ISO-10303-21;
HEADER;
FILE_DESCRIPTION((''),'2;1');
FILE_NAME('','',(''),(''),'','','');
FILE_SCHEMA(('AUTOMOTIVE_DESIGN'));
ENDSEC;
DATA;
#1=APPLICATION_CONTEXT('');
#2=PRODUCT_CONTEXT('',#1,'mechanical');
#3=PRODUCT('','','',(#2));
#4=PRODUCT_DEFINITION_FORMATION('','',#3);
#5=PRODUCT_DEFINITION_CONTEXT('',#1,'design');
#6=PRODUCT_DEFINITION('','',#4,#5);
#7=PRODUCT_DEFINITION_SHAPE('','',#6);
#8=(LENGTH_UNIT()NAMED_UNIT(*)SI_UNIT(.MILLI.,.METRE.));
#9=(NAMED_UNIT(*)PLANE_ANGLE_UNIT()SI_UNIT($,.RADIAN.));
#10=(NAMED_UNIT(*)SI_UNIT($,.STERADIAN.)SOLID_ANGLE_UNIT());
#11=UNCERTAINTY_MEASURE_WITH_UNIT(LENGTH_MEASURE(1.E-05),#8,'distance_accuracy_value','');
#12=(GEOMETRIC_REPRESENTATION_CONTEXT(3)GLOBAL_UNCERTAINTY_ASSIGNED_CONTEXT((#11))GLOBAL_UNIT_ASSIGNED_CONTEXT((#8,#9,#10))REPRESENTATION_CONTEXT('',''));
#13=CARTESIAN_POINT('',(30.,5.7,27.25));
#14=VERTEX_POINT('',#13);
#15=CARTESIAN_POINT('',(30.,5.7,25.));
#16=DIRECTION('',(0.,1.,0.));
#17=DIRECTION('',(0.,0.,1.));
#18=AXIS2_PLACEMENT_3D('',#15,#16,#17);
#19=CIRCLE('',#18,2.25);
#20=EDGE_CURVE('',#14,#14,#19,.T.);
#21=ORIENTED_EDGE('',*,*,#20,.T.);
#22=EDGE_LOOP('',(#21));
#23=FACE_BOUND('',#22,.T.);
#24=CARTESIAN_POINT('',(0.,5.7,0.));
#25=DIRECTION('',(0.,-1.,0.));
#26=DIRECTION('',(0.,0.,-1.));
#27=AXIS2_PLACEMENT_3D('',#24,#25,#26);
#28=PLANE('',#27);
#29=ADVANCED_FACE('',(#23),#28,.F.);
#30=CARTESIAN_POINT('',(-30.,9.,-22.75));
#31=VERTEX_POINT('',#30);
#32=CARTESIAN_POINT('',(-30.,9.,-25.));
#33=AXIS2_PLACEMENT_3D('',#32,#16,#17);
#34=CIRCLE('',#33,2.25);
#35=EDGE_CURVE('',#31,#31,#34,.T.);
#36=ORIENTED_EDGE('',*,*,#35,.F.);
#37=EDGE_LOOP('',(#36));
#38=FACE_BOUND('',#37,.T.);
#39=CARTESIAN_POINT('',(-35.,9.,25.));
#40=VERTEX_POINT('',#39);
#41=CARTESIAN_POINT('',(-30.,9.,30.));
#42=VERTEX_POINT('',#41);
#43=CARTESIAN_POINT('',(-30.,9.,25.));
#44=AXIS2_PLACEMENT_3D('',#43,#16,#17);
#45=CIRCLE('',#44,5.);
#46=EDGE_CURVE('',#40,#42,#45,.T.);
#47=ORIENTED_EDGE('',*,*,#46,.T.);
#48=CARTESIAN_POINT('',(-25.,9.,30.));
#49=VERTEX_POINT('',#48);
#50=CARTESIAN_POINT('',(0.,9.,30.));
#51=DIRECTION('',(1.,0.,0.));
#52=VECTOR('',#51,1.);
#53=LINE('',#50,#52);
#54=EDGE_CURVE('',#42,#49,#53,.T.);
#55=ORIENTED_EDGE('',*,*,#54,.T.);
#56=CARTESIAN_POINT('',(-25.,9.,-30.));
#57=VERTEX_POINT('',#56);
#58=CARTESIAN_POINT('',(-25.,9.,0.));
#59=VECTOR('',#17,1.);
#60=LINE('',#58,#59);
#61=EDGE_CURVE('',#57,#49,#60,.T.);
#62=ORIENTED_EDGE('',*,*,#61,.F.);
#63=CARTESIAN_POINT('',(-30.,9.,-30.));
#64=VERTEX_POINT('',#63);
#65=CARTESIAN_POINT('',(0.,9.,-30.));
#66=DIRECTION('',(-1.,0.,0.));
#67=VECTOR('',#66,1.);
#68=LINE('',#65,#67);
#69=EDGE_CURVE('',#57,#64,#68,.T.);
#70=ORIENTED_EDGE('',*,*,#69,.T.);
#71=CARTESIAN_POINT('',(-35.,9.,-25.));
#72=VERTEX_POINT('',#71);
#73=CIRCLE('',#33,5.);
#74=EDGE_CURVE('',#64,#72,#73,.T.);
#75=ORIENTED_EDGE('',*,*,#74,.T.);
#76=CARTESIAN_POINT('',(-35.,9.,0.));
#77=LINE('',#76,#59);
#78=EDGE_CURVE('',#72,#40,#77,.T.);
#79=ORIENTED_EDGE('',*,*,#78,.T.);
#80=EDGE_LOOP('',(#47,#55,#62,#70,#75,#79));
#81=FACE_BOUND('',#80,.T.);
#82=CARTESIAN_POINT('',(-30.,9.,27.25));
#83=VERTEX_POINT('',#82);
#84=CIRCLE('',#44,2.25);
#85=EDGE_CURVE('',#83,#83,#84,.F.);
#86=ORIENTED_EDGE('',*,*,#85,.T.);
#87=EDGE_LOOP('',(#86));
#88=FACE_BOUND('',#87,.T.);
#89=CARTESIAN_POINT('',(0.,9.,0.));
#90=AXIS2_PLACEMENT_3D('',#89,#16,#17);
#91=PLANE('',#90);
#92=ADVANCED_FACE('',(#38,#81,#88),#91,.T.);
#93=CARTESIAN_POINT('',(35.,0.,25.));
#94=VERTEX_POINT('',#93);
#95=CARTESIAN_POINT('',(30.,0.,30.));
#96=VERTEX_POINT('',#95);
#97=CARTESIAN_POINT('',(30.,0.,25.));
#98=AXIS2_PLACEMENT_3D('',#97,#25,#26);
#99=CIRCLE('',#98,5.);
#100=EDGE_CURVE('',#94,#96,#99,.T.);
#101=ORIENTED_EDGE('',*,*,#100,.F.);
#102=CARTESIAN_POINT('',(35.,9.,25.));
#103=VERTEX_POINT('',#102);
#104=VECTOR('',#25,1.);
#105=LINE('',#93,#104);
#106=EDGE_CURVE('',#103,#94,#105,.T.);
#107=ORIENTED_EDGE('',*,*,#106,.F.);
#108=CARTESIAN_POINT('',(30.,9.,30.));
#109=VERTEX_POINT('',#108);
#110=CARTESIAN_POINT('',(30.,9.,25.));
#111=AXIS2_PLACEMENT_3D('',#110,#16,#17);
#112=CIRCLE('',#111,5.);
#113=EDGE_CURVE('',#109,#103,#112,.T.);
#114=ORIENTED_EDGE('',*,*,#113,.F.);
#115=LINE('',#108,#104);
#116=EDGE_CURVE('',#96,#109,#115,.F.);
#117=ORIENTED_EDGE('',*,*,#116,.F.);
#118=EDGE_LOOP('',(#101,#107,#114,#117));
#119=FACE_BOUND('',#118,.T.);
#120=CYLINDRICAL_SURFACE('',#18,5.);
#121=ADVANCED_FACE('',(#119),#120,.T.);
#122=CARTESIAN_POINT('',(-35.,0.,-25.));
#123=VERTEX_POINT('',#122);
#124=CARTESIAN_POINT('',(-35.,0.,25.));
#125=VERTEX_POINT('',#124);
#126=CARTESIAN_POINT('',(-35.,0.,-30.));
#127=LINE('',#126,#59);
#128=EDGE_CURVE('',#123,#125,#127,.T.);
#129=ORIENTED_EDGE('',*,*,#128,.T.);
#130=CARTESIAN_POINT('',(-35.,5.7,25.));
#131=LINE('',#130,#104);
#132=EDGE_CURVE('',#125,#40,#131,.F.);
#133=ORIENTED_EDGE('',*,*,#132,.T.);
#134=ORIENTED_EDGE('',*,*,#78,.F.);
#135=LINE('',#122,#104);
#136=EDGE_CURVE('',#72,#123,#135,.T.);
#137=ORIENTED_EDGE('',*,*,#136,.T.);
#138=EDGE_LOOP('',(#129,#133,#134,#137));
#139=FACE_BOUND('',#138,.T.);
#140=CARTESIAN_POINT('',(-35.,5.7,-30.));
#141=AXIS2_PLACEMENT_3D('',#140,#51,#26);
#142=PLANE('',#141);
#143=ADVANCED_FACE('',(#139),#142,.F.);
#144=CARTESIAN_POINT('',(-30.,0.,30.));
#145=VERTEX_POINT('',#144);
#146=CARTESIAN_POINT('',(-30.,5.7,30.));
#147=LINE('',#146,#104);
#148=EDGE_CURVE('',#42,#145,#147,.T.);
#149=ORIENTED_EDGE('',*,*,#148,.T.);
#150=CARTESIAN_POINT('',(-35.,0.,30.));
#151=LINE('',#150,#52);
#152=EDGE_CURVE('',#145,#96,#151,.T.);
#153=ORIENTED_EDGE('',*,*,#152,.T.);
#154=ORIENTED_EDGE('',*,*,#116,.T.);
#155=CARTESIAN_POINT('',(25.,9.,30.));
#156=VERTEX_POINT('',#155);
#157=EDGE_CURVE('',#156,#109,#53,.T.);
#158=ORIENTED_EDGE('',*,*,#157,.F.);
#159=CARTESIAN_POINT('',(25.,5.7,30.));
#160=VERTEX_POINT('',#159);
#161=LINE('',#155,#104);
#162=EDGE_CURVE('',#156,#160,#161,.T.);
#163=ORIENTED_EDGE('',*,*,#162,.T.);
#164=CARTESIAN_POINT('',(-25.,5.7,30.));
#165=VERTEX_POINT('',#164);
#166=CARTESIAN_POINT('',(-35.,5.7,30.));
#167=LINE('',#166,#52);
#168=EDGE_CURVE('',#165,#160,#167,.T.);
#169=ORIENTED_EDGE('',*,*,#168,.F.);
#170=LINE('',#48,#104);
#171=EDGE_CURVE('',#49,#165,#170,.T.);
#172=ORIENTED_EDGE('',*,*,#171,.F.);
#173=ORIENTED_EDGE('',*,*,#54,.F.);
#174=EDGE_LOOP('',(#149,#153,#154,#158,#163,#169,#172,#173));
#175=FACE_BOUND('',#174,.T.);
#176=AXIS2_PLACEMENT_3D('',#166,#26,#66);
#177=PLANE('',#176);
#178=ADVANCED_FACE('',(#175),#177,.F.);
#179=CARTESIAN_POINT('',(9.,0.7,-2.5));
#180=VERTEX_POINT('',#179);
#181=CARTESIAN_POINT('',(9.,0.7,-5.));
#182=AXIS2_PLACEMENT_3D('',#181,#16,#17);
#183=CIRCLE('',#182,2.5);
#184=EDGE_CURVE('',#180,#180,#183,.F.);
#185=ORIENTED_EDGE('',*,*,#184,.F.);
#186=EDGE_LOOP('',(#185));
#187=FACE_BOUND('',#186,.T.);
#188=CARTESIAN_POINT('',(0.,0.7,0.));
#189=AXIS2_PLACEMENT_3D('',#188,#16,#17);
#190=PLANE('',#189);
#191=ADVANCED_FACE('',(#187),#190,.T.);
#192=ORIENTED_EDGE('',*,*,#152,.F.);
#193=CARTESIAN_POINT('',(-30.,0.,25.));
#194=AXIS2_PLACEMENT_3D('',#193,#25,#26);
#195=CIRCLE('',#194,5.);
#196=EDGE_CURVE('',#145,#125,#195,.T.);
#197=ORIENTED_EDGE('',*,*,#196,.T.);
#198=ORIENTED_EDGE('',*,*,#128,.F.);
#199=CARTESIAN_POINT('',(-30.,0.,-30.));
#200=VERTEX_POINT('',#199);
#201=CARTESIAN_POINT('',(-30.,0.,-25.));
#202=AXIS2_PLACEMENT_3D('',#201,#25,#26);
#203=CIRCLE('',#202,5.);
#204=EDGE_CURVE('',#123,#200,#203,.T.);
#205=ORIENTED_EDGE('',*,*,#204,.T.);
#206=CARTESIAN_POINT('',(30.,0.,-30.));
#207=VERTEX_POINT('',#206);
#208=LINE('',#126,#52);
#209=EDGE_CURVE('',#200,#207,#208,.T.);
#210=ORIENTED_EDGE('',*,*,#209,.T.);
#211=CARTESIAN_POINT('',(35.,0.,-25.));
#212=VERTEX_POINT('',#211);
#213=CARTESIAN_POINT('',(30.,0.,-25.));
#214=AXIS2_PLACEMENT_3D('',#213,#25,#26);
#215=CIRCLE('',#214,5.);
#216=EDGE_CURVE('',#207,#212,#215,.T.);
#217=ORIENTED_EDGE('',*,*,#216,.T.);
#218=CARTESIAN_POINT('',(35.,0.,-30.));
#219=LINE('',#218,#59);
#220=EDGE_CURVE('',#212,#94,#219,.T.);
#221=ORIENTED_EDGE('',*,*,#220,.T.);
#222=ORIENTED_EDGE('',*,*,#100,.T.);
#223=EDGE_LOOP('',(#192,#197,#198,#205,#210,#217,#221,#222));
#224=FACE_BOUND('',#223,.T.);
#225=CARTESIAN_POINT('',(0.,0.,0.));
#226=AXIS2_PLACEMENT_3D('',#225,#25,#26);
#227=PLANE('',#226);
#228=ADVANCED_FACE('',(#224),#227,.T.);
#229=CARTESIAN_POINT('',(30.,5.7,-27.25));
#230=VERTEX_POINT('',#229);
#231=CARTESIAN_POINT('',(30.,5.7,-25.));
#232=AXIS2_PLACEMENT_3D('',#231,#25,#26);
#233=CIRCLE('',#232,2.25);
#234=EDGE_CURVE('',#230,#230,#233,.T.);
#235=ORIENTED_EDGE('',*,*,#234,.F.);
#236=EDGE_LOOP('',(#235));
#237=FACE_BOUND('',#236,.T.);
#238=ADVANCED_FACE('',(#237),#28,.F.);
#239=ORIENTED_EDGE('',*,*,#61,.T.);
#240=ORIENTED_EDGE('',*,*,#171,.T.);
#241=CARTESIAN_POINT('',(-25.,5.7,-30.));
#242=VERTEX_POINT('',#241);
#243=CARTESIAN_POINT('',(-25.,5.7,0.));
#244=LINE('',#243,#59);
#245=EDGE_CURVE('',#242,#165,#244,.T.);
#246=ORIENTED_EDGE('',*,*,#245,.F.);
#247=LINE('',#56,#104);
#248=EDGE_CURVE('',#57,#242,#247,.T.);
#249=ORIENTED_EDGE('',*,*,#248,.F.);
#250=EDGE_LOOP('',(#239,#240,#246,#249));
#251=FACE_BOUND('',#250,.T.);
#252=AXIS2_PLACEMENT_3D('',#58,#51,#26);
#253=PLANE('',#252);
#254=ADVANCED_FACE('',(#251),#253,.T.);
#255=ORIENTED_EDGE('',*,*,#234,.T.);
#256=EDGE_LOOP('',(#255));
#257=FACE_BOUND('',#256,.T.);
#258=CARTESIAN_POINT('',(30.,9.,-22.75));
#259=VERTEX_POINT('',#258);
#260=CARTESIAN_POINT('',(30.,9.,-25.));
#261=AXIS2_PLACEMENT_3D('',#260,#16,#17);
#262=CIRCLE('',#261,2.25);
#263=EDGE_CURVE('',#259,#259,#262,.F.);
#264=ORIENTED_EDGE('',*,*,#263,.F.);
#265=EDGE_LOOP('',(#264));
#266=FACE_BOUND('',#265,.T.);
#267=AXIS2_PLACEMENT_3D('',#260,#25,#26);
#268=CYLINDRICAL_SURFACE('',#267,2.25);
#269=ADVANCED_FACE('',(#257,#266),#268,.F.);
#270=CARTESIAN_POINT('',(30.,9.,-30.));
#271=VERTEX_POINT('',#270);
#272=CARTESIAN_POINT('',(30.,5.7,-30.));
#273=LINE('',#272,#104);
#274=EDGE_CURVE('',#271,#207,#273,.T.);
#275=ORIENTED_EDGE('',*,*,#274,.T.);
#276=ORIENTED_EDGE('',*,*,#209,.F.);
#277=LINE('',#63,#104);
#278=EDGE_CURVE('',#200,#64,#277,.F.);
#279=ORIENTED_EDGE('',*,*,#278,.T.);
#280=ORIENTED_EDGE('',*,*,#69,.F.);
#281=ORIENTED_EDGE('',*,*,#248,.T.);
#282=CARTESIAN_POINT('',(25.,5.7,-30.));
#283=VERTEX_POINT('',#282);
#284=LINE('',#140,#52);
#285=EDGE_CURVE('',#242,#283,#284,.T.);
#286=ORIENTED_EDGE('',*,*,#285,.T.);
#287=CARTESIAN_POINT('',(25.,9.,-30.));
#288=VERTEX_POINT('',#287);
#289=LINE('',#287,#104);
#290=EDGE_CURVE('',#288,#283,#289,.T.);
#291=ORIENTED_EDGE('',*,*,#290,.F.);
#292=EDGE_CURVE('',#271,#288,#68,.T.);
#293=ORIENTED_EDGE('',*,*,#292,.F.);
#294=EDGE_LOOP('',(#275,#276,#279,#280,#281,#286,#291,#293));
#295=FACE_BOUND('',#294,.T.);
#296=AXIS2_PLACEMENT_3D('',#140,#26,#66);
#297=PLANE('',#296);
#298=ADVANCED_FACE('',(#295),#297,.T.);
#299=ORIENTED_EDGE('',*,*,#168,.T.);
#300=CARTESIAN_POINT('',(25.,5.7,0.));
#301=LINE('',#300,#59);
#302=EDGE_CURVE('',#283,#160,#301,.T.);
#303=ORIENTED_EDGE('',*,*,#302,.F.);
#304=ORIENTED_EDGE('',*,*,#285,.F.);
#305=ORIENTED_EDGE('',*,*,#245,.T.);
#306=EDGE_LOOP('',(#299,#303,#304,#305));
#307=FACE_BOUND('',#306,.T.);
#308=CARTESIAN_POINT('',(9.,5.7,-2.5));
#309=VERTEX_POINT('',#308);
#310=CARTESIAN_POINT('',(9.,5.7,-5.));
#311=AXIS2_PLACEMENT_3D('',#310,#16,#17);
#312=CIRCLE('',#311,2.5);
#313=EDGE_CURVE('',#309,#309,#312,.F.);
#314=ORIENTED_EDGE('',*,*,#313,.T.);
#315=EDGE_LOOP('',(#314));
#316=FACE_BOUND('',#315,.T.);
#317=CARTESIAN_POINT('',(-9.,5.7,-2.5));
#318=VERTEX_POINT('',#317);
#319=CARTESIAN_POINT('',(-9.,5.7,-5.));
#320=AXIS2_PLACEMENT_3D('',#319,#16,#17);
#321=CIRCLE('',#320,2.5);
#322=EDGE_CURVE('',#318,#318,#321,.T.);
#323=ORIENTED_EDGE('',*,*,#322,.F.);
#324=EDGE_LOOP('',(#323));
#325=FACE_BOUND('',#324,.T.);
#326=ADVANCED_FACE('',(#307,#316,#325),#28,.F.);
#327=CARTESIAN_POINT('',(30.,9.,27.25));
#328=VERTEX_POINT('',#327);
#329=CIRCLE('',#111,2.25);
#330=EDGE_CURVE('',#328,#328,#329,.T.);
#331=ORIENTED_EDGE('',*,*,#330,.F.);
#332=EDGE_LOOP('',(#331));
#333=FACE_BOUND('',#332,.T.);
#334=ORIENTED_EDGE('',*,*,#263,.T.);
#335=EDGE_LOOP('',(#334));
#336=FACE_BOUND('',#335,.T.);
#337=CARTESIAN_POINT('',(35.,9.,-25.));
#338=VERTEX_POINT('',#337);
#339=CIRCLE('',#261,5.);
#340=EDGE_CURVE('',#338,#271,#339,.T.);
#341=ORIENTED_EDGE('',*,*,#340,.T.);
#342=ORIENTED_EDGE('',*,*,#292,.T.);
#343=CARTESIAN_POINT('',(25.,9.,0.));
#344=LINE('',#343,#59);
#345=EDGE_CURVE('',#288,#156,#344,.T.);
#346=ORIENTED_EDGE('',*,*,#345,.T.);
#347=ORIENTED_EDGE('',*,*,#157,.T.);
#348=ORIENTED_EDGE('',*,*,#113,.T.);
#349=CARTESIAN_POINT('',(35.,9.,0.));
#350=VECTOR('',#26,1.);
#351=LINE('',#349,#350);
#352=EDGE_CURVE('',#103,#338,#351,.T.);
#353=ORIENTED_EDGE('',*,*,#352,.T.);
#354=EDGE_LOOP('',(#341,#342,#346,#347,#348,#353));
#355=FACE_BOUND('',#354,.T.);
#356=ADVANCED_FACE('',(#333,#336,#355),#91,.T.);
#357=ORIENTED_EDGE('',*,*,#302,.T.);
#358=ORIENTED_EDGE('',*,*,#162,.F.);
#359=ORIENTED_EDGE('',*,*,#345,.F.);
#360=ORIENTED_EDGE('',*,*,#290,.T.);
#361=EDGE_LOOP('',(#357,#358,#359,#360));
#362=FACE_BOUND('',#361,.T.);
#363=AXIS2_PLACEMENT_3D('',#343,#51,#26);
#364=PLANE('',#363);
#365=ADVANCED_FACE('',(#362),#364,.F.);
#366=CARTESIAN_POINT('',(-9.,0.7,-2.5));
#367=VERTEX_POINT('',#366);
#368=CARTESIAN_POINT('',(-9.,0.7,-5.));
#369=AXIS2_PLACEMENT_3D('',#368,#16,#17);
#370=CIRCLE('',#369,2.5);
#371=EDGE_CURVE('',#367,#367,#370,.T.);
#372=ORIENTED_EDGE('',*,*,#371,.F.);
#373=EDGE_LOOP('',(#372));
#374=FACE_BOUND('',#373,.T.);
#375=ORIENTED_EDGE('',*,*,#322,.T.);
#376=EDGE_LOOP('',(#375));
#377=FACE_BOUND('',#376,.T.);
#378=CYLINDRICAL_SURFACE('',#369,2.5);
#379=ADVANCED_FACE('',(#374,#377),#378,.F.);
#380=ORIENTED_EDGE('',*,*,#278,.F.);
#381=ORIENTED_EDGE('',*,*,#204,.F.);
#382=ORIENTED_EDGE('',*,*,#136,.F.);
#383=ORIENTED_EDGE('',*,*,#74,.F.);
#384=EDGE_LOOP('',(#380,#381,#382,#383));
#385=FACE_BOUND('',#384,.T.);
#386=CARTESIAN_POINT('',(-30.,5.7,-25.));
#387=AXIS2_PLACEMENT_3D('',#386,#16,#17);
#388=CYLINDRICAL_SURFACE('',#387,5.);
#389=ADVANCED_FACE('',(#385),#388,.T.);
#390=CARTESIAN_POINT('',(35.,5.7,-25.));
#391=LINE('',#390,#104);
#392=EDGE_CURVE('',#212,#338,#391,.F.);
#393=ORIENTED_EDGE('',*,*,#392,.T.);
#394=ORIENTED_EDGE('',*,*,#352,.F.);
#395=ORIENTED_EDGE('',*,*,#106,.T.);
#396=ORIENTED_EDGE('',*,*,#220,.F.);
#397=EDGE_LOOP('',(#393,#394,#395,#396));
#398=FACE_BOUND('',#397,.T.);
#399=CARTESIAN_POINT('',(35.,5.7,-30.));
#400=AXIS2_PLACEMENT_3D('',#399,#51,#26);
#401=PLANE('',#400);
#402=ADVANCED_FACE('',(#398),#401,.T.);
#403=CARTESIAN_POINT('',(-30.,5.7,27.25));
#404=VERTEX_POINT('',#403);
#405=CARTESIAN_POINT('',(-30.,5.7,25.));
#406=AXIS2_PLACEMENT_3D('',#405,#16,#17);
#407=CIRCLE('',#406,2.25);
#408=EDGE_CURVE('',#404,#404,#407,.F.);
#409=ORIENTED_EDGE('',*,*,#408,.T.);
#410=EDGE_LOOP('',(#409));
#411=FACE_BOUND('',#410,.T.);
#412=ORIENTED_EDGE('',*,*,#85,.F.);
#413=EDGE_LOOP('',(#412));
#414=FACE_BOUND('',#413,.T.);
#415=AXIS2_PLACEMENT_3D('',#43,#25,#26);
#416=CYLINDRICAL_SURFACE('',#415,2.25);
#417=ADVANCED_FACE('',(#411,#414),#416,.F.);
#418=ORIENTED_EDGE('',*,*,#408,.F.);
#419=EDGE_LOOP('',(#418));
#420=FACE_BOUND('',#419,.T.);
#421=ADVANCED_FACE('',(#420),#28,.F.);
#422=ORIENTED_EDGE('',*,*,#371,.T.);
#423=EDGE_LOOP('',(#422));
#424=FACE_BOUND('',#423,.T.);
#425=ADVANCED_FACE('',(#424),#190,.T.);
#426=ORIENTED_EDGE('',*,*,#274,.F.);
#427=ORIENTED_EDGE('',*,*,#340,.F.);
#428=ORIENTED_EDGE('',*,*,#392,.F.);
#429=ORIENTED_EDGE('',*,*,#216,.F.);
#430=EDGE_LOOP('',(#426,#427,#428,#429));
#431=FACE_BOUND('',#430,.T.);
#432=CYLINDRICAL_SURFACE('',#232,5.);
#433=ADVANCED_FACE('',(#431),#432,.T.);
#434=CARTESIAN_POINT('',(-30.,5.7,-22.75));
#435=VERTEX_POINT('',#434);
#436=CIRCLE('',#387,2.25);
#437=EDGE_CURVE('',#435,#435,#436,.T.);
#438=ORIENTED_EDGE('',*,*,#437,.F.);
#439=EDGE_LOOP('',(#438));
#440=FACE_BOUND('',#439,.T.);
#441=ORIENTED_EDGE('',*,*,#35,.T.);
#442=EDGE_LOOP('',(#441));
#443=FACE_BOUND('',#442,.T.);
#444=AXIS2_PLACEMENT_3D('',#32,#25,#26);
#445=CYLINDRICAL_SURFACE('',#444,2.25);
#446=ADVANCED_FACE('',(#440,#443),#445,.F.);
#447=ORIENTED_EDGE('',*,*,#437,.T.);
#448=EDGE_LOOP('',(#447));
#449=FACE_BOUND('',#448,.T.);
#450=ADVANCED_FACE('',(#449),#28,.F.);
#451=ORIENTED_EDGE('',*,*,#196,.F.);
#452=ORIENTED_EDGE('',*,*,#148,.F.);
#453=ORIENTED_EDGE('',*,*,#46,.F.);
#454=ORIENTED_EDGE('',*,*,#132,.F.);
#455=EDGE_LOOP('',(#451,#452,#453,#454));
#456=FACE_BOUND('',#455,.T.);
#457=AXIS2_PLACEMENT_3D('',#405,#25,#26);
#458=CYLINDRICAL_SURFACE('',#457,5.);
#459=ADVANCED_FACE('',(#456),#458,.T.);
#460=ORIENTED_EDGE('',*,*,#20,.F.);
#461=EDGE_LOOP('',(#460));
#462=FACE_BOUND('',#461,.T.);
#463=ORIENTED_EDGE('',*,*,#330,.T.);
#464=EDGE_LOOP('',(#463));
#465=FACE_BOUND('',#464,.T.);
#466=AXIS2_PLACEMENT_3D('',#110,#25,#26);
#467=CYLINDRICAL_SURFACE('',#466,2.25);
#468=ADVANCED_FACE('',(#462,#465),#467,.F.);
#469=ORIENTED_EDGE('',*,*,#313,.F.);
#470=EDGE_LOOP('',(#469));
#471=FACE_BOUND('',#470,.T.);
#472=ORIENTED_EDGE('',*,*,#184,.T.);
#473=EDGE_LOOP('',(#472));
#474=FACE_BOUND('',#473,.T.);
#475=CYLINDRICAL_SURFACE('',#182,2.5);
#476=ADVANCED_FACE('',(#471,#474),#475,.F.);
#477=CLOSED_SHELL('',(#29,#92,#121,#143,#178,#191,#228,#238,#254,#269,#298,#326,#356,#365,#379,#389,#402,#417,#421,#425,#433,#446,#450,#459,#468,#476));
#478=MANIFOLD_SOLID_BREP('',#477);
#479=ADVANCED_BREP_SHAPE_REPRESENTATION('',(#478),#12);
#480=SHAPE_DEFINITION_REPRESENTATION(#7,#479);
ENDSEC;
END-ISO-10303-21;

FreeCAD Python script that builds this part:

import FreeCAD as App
import Part
import Sketcher
from FreeCAD import Vector
Q = App.Units.Quantity


def edges_at(feature, points):
    """Names of the edges that pass closest to the given points."""
    edges = feature.Shape.Edges
    near = lambda p: min(range(len(edges)), key=lambda i: edges[i].distToShape(Part.Vertex(*p))[0])
    return sorted({f"Edge{near(p) + 1}" for p in points})


def add_polygon(sketch, points):
    """Adds a closed chain of lines whose ends are joined by coincident constraints."""
    first, n = sketch.GeometryCount, len(points)
    for a, b in zip(points, points[1:] + points[:1]):
        sketch.addGeometry(Part.LineSegment(App.Vector(*a, 0), App.Vector(*b, 0)), False)
    for i in range(n):
        sketch.addConstraint(Sketcher.Constraint("Coincident", first + i, 2, first + (i + 1) % n, 1))

doc = App.newDocument("Part")
body = doc.addObject("PartDesign::Body", "Body")

sketch1 = body.newObject("Sketcher::SketchObject", "Sketch")
sketch1.AttachmentSupport = (doc.getObject("XZ_Plane"), [""])
sketch1.MapMode = "FlatFace"
add_polygon(sketch1, [(-35, -30), (-35, 30), (35, 30), (35, -30)])
sketch1.addConstraint([
    Sketcher.Constraint("Vertical", 0),
    Sketcher.Constraint("Horizontal", 1),
    Sketcher.Constraint("Vertical", 2),
    Sketcher.Constraint("Horizontal", 3),
    Sketcher.Constraint("Symmetric", 0, 2, 2, 2, -1, 1),
    Sketcher.Constraint("DistanceX", 1, 1, 1, 2, Q("70 mm")),
    Sketcher.Constraint("DistanceY", 0, 1, 0, 2, Q("60 mm")),
])
pad1 = body.newObject("PartDesign::Pad", "Pad")
pad1.Profile = sketch1
pad1.Length = 5.7
pad1.Reversed = True

sketch2 = body.newObject("Sketcher::SketchObject", "Sketch001")
sketch2.AttachmentSupport = (doc.getObject("XZ_Plane"), [""])
sketch2.MapMode = "FlatFace"
sketch2.AttachmentOffset = App.Placement(Vector(0, 0, -5.7), App.Rotation())
add_polygon(sketch2, [(-35, -30), (-35, 30), (-25, 30), (-25, -30)])
sketch2.addGeometry(Part.Circle(Vector(-30, 25, 0), Vector(0, 0, 1), 2.25), False)
sketch2.addGeometry(Part.Circle(Vector(-30, -25, 0), Vector(0, 0, 1), 2.25), False)
add_polygon(sketch2, [(25, -30), (25, 30), (35, 30), (35, -30)])
sketch2.addGeometry(Part.Circle(Vector(30, 25, 0), Vector(0, 0, 1), 2.25), False)
sketch2.addGeometry(Part.Circle(Vector(30, -25, 0), Vector(0, 0, 1), 2.25), False)
sketch2.addConstraint([
    Sketcher.Constraint("Vertical", 0),
    Sketcher.Constraint("Horizontal", 1),
    Sketcher.Constraint("Vertical", 2),
    Sketcher.Constraint("Horizontal", 3),
    Sketcher.Constraint("Vertical", 6),
    Sketcher.Constraint("Horizontal", 7),
    Sketcher.Constraint("Vertical", 8),
    Sketcher.Constraint("Horizontal", 9),
    Sketcher.Constraint("Equal", 4, 5),
    Sketcher.Constraint("Equal", 5, 10),
    Sketcher.Constraint("Equal", 10, 11),
    Sketcher.Constraint("Symmetric", 5, 3, 10, 3, -1, 1),
    Sketcher.Constraint("Symmetric", 4, 3, 11, 3, -1, 1),
    Sketcher.Constraint("Symmetric", 2, 2, 6, 2, -1, 1),
    Sketcher.Constraint("Symmetric", 0, 2, 8, 2, -1, 1),
    Sketcher.Constraint("Symmetric", 4, 3, 10, 3, -2),
    Sketcher.Constraint("Horizontal", 1, 2, 6, 2),
    Sketcher.Constraint("Diameter", 4, Q("4.5 mm")),
    Sketcher.Constraint("DistanceX", 1, 1, 1, 2, Q("10 mm")),
    Sketcher.Constraint("DistanceY", 0, 1, 0, 2, Q("60 mm")),
    Sketcher.Constraint("DistanceX", 4, 3, -1, 1, Q("30 mm")),
    Sketcher.Constraint("DistanceY", -1, 1, 4, 3, Q("25 mm")),
    Sketcher.Constraint("DistanceX", 0, 2, -1, 1, Q("35 mm")),
])
pad2 = body.newObject("PartDesign::Pad", "Pad001")
pad2.Profile = sketch2
pad2.Length = 3.3
pad2.Reversed = True
doc.recompute()

fillet = body.newObject("PartDesign::Fillet", "Fillet")
fillet.Base = (pad2, edges_at(pad2, [
    (-35, 4.5, -30),
    (-35, 4.5, 30),
    (35, 4.5, 30),
    (35, 4.5, -30),
]))
fillet.Radius = 5

sketch3 = body.newObject("Sketcher::SketchObject", "Sketch002")
sketch3.AttachmentSupport = (doc.getObject("XZ_Plane"), [""])
sketch3.MapMode = "FlatFace"
sketch3.AttachmentOffset = App.Placement(Vector(0, 0, -5.7), App.Rotation())
sketch3.addGeometry([
    Part.Circle(Vector(-9, -5, 0), Vector(0, 0, 1), 2.5),
    Part.Circle(Vector(9, -5, 0), Vector(0, 0, 1), 2.5),
], False)
sketch3.addConstraint([
    Sketcher.Constraint("Equal", 0, 1),
    Sketcher.Constraint("Symmetric", 0, 3, 1, 3, -2),
    Sketcher.Constraint("Diameter", 0, Q("5 mm")),
    Sketcher.Constraint("DistanceX", 0, 3, -1, 1, Q("9 mm")),
    Sketcher.Constraint("DistanceY", 0, 3, -1, 1, Q("5 mm")),
])
pocket1 = body.newObject("PartDesign::Pocket", "Pocket")
pocket1.Profile = sketch3
pocket1.Length = 5
pocket1.Reversed = True

doc.recompute()
